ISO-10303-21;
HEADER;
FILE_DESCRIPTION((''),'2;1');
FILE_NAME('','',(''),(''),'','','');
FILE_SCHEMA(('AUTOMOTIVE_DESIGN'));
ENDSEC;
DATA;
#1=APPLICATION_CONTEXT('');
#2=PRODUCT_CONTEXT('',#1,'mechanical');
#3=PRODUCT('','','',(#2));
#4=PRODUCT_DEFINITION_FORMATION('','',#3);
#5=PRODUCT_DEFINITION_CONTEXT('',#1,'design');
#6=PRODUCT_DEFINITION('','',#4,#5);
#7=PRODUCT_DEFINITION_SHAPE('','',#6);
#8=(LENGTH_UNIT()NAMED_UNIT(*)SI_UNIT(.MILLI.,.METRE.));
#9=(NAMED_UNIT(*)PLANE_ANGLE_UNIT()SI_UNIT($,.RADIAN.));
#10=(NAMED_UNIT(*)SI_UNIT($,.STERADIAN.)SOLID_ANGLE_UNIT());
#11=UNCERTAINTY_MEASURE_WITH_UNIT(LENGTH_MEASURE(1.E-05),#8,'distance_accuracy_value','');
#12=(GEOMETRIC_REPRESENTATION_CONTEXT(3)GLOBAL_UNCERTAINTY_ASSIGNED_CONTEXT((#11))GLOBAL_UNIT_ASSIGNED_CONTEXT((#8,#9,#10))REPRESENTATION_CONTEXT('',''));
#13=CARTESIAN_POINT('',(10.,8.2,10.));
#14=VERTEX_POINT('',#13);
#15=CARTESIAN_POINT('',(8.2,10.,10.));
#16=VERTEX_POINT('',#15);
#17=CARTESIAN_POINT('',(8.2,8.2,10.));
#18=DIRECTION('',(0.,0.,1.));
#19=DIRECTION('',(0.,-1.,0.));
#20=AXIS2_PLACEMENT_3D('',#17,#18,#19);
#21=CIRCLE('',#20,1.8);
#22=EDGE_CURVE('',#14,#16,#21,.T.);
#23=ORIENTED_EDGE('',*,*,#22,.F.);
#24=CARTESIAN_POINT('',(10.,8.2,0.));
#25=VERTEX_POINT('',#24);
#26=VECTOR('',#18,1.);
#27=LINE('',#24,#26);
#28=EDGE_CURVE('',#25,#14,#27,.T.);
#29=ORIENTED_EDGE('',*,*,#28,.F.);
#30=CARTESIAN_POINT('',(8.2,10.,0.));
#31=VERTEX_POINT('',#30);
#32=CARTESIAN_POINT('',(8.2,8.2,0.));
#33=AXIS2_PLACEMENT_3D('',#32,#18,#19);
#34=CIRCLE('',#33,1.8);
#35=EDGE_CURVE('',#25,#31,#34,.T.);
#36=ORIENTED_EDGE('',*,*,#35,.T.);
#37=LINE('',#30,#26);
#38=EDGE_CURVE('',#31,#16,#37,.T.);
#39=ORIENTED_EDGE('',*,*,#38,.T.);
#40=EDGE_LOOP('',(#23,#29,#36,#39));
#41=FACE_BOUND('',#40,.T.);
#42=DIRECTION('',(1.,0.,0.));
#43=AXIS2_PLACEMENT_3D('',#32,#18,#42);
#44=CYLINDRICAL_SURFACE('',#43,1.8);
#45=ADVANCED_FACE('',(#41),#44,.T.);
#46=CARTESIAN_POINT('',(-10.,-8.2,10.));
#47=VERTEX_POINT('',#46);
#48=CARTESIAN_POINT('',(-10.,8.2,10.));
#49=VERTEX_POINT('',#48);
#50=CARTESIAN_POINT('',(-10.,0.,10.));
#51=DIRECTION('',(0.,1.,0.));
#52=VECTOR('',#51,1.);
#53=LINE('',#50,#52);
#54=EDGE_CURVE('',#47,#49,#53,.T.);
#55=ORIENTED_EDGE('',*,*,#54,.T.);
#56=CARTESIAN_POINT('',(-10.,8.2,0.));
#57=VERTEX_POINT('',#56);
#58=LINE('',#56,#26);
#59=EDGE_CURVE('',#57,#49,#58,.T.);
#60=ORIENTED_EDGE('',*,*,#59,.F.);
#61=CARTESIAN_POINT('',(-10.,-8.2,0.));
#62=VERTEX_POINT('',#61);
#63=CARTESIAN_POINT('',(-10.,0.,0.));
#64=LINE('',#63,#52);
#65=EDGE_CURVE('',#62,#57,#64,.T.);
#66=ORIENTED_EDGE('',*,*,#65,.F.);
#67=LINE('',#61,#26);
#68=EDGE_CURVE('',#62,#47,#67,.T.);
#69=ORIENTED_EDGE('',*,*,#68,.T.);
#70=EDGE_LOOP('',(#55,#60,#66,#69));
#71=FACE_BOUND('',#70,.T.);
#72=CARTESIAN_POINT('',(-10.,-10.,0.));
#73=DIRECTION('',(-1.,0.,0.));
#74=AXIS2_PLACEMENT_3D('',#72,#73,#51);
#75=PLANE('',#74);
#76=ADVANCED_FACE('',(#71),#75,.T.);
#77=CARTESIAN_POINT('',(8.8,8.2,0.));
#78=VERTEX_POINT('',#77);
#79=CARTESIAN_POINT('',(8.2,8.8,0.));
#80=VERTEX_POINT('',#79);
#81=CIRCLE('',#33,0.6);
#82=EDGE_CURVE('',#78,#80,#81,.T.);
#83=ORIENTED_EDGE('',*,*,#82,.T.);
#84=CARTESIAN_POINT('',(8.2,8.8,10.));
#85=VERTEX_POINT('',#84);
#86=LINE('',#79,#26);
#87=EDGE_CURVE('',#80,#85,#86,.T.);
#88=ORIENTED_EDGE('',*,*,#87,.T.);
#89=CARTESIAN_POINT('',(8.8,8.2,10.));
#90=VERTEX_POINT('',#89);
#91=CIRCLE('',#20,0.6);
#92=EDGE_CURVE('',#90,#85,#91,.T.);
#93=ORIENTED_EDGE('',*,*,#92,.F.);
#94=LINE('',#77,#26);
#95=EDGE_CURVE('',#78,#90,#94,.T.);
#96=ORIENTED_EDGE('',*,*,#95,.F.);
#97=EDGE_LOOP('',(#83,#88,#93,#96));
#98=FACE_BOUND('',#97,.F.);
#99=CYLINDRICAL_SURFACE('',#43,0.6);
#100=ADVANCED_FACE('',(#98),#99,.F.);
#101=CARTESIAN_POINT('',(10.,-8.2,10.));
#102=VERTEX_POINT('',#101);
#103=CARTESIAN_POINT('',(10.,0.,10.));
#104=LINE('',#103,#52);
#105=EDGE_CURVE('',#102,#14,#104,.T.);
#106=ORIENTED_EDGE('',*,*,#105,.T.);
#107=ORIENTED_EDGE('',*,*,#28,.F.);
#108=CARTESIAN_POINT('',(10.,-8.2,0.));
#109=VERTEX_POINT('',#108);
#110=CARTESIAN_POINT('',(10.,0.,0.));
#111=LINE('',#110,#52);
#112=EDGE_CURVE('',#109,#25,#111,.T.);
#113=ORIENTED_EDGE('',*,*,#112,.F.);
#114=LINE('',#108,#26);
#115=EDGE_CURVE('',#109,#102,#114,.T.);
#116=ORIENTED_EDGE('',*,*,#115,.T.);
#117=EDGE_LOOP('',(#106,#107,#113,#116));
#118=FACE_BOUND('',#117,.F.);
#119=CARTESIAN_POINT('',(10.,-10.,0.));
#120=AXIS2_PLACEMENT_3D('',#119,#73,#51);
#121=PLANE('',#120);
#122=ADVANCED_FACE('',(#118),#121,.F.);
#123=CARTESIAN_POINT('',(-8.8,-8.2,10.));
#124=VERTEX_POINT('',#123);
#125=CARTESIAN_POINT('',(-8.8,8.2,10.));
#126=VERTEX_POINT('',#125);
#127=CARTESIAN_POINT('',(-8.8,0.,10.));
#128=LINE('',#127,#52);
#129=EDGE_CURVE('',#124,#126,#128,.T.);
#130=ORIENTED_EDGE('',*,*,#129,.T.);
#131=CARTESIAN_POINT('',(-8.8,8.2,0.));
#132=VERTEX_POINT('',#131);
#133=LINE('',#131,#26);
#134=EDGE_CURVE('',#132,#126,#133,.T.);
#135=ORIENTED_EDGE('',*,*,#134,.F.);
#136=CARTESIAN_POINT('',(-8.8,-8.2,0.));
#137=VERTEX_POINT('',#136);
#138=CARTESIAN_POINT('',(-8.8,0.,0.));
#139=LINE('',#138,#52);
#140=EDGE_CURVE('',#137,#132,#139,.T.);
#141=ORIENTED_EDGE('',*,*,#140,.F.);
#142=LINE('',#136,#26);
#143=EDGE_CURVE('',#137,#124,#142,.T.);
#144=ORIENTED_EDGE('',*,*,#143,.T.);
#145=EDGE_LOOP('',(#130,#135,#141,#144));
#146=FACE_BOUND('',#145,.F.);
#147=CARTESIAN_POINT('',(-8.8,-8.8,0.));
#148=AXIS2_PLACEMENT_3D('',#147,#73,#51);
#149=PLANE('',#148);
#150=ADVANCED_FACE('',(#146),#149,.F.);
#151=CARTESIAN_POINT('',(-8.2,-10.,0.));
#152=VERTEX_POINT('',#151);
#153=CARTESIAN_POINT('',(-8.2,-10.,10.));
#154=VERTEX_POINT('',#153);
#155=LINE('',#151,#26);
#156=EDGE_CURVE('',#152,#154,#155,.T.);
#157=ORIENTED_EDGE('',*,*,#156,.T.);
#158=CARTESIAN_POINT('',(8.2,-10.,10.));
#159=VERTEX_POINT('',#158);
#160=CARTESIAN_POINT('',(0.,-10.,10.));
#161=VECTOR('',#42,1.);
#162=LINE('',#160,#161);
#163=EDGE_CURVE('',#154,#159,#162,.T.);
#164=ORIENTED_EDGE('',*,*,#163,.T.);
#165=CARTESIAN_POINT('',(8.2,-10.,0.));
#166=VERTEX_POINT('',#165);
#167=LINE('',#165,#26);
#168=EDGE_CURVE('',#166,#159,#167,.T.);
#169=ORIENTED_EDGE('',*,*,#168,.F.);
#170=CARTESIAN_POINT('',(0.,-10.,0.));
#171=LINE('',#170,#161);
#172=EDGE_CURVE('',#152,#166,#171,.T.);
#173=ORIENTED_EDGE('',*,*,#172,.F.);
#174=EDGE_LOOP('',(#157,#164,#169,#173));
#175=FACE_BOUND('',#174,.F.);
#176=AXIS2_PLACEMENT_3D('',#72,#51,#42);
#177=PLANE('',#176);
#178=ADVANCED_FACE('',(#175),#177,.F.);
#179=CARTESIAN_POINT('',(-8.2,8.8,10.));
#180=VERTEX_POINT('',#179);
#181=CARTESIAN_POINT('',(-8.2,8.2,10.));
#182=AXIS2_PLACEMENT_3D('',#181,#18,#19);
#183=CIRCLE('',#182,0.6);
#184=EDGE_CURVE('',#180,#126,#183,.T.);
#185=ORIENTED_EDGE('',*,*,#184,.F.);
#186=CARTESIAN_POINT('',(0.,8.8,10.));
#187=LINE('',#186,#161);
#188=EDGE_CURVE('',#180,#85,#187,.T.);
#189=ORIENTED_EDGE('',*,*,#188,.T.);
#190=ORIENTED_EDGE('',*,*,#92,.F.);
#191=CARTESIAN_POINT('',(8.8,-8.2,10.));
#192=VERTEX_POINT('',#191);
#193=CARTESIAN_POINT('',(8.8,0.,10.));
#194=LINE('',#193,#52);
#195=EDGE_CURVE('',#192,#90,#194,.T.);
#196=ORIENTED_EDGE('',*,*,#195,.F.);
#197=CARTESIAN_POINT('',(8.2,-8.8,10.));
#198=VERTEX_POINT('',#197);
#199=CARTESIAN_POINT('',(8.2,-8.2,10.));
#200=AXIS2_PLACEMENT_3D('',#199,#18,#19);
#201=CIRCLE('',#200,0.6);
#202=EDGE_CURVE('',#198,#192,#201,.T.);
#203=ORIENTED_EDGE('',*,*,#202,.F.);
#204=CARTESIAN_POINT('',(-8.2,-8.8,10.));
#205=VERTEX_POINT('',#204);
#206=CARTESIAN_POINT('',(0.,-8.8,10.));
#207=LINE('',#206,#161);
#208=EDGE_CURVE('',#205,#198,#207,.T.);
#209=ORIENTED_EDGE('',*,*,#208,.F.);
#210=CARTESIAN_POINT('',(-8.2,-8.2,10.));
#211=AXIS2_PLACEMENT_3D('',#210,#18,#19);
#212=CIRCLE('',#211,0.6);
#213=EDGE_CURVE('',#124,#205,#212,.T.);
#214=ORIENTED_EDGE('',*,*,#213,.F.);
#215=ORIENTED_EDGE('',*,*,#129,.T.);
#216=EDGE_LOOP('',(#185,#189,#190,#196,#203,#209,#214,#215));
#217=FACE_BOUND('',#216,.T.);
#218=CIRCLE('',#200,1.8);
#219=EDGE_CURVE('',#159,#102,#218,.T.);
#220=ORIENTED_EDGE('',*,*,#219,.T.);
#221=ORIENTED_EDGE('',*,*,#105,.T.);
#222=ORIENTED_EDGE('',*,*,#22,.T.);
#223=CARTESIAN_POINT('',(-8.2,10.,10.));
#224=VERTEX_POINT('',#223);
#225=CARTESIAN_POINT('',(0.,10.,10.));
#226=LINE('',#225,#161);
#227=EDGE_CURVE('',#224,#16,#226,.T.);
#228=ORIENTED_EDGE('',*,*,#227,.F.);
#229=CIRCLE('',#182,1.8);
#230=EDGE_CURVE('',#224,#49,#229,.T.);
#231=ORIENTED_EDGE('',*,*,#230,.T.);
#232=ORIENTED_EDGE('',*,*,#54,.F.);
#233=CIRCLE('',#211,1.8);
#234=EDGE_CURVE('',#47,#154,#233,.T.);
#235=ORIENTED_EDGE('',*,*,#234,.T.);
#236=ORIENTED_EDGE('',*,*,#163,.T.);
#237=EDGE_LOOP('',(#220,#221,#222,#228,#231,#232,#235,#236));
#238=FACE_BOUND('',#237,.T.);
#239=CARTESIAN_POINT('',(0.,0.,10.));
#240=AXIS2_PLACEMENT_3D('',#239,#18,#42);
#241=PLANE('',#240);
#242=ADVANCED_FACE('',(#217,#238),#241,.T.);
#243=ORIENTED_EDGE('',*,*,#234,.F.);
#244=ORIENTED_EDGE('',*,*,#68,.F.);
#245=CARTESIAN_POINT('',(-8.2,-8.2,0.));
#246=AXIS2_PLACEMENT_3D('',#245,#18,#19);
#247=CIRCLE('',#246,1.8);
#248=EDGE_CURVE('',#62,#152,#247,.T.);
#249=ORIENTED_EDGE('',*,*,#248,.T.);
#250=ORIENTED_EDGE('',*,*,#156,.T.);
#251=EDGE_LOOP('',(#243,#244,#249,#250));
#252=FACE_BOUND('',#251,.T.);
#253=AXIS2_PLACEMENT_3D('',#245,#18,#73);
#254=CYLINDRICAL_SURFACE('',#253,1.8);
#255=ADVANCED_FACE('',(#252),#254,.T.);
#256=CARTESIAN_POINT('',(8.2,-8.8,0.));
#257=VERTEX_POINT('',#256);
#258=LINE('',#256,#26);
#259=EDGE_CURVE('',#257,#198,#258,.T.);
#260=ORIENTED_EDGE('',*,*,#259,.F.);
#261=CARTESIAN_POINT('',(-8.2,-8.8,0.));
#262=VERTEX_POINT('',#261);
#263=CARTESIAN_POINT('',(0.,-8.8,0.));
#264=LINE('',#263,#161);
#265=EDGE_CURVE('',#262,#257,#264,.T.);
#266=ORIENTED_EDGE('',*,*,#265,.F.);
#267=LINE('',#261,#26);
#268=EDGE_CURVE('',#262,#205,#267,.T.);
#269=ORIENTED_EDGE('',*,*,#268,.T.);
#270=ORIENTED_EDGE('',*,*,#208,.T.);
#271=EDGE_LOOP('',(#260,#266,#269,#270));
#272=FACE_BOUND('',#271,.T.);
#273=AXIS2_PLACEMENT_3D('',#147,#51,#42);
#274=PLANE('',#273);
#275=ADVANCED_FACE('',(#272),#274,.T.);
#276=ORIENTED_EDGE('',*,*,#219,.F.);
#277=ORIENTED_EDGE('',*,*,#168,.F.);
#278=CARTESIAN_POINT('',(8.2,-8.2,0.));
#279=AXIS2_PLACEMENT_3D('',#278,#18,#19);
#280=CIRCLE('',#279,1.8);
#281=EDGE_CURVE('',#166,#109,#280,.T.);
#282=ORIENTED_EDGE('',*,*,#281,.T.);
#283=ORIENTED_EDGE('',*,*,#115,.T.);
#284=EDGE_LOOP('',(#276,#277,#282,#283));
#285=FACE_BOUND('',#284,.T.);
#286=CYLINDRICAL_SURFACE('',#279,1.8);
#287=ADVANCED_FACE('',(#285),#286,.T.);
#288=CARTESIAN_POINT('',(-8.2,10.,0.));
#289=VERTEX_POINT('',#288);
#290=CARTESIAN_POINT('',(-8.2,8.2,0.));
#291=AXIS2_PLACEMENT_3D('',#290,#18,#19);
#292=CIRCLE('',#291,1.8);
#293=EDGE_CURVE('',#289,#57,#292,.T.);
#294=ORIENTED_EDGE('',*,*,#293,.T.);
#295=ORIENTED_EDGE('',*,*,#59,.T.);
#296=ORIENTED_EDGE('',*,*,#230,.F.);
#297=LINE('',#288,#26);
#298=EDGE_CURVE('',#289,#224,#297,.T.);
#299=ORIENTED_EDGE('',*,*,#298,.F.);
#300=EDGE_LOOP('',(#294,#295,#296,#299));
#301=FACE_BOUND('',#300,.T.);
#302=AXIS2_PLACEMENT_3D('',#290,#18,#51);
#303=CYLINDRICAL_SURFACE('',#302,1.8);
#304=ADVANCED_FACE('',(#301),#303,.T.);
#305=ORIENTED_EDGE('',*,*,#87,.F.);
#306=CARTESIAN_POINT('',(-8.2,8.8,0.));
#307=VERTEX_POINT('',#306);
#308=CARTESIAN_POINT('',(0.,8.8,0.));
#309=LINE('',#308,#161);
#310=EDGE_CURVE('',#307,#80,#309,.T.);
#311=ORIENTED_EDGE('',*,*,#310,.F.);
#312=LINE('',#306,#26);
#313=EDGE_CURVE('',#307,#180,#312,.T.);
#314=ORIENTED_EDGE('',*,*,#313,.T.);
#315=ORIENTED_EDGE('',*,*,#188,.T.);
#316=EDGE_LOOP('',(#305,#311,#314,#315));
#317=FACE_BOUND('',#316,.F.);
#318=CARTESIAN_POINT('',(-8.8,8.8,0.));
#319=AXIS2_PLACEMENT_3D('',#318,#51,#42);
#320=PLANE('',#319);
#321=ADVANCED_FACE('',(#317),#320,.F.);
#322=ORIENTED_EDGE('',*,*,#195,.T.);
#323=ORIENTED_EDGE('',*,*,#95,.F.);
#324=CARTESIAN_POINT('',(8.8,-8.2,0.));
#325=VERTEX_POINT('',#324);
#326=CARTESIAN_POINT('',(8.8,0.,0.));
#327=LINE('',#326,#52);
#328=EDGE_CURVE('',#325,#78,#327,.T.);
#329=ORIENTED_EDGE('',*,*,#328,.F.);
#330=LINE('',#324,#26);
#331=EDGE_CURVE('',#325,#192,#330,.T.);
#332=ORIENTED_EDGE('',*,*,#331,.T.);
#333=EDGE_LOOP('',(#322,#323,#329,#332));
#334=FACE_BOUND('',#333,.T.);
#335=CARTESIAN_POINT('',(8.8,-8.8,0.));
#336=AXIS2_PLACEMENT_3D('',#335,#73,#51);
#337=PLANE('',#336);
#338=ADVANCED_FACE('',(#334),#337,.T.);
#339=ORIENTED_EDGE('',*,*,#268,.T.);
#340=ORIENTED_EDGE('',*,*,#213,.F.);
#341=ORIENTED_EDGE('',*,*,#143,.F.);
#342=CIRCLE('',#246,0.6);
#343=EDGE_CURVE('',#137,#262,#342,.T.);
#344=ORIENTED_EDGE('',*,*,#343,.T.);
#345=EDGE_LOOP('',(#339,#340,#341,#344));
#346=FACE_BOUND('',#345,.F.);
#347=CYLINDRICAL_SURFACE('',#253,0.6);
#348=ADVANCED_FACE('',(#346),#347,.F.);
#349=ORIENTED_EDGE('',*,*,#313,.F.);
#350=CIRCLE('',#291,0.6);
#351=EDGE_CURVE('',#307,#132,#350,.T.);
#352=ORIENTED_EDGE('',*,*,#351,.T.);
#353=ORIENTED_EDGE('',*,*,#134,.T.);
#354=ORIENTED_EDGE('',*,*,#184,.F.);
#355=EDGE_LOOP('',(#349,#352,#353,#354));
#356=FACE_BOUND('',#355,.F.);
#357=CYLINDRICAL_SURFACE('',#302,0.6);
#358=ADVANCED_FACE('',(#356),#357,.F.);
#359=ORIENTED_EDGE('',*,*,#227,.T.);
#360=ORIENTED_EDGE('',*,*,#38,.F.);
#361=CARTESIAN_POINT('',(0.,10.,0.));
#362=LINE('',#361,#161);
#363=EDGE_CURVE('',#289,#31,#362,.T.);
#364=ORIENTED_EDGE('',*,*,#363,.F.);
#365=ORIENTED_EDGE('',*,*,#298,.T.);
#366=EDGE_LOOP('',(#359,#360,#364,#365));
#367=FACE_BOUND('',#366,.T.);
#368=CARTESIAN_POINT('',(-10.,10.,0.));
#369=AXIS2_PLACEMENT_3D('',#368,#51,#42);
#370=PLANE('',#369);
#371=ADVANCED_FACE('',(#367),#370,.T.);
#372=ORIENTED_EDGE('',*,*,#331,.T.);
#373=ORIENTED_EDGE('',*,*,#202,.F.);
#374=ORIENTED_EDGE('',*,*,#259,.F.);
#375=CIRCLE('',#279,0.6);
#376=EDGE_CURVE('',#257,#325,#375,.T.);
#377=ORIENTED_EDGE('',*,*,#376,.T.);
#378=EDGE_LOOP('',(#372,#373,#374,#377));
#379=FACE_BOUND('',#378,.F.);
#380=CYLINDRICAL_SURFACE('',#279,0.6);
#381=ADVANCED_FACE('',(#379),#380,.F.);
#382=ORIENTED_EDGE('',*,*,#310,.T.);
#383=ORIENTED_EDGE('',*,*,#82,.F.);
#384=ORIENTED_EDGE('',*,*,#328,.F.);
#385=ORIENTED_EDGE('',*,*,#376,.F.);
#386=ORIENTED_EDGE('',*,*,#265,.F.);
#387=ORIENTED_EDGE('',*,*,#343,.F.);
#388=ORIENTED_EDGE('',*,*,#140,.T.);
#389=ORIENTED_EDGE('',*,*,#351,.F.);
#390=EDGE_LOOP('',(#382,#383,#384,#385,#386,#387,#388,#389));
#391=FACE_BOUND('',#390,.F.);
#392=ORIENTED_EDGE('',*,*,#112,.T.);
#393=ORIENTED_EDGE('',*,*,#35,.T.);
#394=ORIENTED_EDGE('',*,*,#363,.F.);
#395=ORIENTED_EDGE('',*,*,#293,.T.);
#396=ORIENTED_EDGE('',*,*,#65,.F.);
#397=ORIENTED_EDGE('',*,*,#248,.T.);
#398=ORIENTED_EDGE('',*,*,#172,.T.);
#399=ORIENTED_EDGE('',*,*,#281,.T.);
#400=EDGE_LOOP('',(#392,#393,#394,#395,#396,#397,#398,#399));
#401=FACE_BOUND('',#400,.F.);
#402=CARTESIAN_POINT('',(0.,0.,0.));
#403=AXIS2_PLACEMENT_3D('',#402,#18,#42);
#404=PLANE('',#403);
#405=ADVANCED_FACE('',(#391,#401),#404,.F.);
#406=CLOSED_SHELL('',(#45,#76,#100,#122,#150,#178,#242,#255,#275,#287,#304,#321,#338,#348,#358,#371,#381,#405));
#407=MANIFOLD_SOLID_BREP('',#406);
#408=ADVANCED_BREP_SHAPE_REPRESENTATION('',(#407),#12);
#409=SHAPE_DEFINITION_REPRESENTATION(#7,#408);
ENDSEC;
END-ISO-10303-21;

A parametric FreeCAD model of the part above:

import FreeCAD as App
import Part
import Sketcher

V = App.Vector
Q = App.Units.Quantity


def edges_at(feature, points):
    """Names of the edges that pass closest to the given points."""
    edges = feature.Shape.Edges
    near = lambda p: min(range(len(edges)), key=lambda i: edges[i].distToShape(Part.Vertex(*p))[0])
    return sorted({f"Edge{near(p) + 1}" for p in points})

doc = App.newDocument("Part")
params = doc.addObject("Spreadsheet::Sheet", "Params")
for row, (alias, value) in enumerate([
    ("sketch1_width", "20 mm"),
    ("sketch1_width2", "17.6 mm"),
    ("pad1_length", "10 mm"),
    ("fillet_radius", "1.8 mm"),
    ("fillet2_radius", "1.8 mm"),
    ("fillet3_radius", "1.8 mm"),
    ("fillet4_radius", "1.8 mm"),
    ("fillet5_radius", "0.6 mm"),
    ("fillet6_radius", "0.6 mm"),
    ("fillet7_radius", "0.6 mm"),
    ("fillet8_radius", "0.6 mm"),
], start=1):
    params.set(f"A{row}", alias)
    params.set(f"B{row}", "=" + value)
    params.setAlias(f"B{row}", alias)

body = doc.addObject("PartDesign::Body", "Body")

# Sketch on XY plane
sketch1 = body.newObject("Sketcher::SketchObject", "Sketch")
sketch1.AttachmentSupport = (doc.getObject("XY_Plane"), [""])
sketch1.MapMode = "FlatFace"
sketch1.addGeometry([
    Part.LineSegment(V(-10, 10, 0), V(-10, -10, 0)),  # 0
    Part.LineSegment(V(-10, -10, 0), V(10, -10, 0)),  # 1
    Part.LineSegment(V(10, -10, 0), V(10, 10, 0)),  # 2
    Part.LineSegment(V(10, 10, 0), V(-10, 10, 0)),  # 3
    Part.LineSegment(V(9, -9, 0), V(-9, -9, 0)),  # 4
    Part.LineSegment(V(-9, -9, 0), V(-9, 9, 0)),  # 5
    Part.LineSegment(V(-9, 9, 0), V(9, 9, 0)),  # 6
    Part.LineSegment(V(9, 9, 0), V(9, -9, 0)),  # 7
], False)
sketch1.addConstraint([
    Sketcher.Constraint("Coincident", 0, 2, 1, 1),
    Sketcher.Constraint("Coincident", 1, 2, 2, 1),
    Sketcher.Constraint("Coincident", 2, 2, 3, 1),
    Sketcher.Constraint("Coincident", 3, 2, 0, 1),
    Sketcher.Constraint("Coincident", 4, 2, 5, 1),
    Sketcher.Constraint("Coincident", 5, 2, 6, 1),
    Sketcher.Constraint("Coincident", 6, 2, 7, 1),
    Sketcher.Constraint("Coincident", 7, 2, 4, 1),
    Sketcher.Constraint("Vertical", 0),
    Sketcher.Constraint("Horizontal", 1),
    Sketcher.Constraint("Vertical", 2),
    Sketcher.Constraint("Horizontal", 3),
    Sketcher.Constraint("Horizontal", 4),
    Sketcher.Constraint("Vertical", 5),
    Sketcher.Constraint("Horizontal", 6),
    Sketcher.Constraint("Vertical", 7),
    Sketcher.Constraint("Symmetric", 0, 2, 2, 2, -1, 1),
    Sketcher.Constraint("Symmetric", 4, 2, 6, 2, -1, 1),
    Sketcher.Constraint("Equal", 3, 0),
    Sketcher.Constraint("Equal", 6, 5),
    Sketcher.Constraint("DistanceX", 1, 1, 1, 2, Q("20 mm")),
    Sketcher.Constraint("DistanceX", 4, 2, 4, 1, Q("17.6 mm")),
])
sketch1.setExpression("Constraints[20]", "Params.sketch1_width")
sketch1.setExpression("Constraints[21]", "Params.sketch1_width2")
pad1 = body.newObject("PartDesign::Pad", "Pad")
pad1.Profile = sketch1
pad1.setExpression("Length", "Params.pad1_length")
doc.recompute()

fillet = body.newObject("PartDesign::Fillet", "Fillet")
fillet.Base = (pad1, edges_at(pad1, [(10, -10, 5)]))
fillet.setExpression("Radius", "Params.fillet_radius")
doc.recompute()

fillet2 = body.newObject("PartDesign::Fillet", "Fillet001")
fillet2.Base = (fillet, edges_at(fillet, [(10, 10, 5)]))
fillet2.setExpression("Radius", "Params.fillet2_radius")
doc.recompute()

fillet3 = body.newObject("PartDesign::Fillet", "Fillet002")
fillet3.Base = (fillet2, edges_at(fillet2, [(-10, 10, 5)]))
fillet3.setExpression("Radius", "Params.fillet3_radius")
doc.recompute()

fillet4 = body.newObject("PartDesign::Fillet", "Fillet003")
fillet4.Base = (fillet3, edges_at(fillet3, [(-10, -10, 5)]))
fillet4.setExpression("Radius", "Params.fillet4_radius")
doc.recompute()

fillet5 = body.newObject("PartDesign::Fillet", "Fillet004")
fillet5.Base = (fillet4, edges_at(fillet4, [(-8.8, 8.8, 5)]))
fillet5.setExpression("Radius", "Params.fillet5_radius")
doc.recompute()

fillet6 = body.newObject("PartDesign::Fillet", "Fillet005")
fillet6.Base = (fillet5, edges_at(fillet5, [(-8.8, -8.8, 5)]))
fillet6.setExpression("Radius", "Params.fillet6_radius")
doc.recompute()

fillet7 = body.newObject("PartDesign::Fillet", "Fillet006")
fillet7.Base = (fillet6, edges_at(fillet6, [(8.8, -8.8, 5)]))
fillet7.setExpression("Radius", "Params.fillet7_radius")
doc.recompute()

fillet8 = body.newObject("PartDesign::Fillet", "Fillet007")
fillet8.Base = (fillet7, edges_at(fillet7, [(8.8, 8.8, 5)]))
fillet8.setExpression("Radius", "Params.fillet8_radius")

doc.recompute()
